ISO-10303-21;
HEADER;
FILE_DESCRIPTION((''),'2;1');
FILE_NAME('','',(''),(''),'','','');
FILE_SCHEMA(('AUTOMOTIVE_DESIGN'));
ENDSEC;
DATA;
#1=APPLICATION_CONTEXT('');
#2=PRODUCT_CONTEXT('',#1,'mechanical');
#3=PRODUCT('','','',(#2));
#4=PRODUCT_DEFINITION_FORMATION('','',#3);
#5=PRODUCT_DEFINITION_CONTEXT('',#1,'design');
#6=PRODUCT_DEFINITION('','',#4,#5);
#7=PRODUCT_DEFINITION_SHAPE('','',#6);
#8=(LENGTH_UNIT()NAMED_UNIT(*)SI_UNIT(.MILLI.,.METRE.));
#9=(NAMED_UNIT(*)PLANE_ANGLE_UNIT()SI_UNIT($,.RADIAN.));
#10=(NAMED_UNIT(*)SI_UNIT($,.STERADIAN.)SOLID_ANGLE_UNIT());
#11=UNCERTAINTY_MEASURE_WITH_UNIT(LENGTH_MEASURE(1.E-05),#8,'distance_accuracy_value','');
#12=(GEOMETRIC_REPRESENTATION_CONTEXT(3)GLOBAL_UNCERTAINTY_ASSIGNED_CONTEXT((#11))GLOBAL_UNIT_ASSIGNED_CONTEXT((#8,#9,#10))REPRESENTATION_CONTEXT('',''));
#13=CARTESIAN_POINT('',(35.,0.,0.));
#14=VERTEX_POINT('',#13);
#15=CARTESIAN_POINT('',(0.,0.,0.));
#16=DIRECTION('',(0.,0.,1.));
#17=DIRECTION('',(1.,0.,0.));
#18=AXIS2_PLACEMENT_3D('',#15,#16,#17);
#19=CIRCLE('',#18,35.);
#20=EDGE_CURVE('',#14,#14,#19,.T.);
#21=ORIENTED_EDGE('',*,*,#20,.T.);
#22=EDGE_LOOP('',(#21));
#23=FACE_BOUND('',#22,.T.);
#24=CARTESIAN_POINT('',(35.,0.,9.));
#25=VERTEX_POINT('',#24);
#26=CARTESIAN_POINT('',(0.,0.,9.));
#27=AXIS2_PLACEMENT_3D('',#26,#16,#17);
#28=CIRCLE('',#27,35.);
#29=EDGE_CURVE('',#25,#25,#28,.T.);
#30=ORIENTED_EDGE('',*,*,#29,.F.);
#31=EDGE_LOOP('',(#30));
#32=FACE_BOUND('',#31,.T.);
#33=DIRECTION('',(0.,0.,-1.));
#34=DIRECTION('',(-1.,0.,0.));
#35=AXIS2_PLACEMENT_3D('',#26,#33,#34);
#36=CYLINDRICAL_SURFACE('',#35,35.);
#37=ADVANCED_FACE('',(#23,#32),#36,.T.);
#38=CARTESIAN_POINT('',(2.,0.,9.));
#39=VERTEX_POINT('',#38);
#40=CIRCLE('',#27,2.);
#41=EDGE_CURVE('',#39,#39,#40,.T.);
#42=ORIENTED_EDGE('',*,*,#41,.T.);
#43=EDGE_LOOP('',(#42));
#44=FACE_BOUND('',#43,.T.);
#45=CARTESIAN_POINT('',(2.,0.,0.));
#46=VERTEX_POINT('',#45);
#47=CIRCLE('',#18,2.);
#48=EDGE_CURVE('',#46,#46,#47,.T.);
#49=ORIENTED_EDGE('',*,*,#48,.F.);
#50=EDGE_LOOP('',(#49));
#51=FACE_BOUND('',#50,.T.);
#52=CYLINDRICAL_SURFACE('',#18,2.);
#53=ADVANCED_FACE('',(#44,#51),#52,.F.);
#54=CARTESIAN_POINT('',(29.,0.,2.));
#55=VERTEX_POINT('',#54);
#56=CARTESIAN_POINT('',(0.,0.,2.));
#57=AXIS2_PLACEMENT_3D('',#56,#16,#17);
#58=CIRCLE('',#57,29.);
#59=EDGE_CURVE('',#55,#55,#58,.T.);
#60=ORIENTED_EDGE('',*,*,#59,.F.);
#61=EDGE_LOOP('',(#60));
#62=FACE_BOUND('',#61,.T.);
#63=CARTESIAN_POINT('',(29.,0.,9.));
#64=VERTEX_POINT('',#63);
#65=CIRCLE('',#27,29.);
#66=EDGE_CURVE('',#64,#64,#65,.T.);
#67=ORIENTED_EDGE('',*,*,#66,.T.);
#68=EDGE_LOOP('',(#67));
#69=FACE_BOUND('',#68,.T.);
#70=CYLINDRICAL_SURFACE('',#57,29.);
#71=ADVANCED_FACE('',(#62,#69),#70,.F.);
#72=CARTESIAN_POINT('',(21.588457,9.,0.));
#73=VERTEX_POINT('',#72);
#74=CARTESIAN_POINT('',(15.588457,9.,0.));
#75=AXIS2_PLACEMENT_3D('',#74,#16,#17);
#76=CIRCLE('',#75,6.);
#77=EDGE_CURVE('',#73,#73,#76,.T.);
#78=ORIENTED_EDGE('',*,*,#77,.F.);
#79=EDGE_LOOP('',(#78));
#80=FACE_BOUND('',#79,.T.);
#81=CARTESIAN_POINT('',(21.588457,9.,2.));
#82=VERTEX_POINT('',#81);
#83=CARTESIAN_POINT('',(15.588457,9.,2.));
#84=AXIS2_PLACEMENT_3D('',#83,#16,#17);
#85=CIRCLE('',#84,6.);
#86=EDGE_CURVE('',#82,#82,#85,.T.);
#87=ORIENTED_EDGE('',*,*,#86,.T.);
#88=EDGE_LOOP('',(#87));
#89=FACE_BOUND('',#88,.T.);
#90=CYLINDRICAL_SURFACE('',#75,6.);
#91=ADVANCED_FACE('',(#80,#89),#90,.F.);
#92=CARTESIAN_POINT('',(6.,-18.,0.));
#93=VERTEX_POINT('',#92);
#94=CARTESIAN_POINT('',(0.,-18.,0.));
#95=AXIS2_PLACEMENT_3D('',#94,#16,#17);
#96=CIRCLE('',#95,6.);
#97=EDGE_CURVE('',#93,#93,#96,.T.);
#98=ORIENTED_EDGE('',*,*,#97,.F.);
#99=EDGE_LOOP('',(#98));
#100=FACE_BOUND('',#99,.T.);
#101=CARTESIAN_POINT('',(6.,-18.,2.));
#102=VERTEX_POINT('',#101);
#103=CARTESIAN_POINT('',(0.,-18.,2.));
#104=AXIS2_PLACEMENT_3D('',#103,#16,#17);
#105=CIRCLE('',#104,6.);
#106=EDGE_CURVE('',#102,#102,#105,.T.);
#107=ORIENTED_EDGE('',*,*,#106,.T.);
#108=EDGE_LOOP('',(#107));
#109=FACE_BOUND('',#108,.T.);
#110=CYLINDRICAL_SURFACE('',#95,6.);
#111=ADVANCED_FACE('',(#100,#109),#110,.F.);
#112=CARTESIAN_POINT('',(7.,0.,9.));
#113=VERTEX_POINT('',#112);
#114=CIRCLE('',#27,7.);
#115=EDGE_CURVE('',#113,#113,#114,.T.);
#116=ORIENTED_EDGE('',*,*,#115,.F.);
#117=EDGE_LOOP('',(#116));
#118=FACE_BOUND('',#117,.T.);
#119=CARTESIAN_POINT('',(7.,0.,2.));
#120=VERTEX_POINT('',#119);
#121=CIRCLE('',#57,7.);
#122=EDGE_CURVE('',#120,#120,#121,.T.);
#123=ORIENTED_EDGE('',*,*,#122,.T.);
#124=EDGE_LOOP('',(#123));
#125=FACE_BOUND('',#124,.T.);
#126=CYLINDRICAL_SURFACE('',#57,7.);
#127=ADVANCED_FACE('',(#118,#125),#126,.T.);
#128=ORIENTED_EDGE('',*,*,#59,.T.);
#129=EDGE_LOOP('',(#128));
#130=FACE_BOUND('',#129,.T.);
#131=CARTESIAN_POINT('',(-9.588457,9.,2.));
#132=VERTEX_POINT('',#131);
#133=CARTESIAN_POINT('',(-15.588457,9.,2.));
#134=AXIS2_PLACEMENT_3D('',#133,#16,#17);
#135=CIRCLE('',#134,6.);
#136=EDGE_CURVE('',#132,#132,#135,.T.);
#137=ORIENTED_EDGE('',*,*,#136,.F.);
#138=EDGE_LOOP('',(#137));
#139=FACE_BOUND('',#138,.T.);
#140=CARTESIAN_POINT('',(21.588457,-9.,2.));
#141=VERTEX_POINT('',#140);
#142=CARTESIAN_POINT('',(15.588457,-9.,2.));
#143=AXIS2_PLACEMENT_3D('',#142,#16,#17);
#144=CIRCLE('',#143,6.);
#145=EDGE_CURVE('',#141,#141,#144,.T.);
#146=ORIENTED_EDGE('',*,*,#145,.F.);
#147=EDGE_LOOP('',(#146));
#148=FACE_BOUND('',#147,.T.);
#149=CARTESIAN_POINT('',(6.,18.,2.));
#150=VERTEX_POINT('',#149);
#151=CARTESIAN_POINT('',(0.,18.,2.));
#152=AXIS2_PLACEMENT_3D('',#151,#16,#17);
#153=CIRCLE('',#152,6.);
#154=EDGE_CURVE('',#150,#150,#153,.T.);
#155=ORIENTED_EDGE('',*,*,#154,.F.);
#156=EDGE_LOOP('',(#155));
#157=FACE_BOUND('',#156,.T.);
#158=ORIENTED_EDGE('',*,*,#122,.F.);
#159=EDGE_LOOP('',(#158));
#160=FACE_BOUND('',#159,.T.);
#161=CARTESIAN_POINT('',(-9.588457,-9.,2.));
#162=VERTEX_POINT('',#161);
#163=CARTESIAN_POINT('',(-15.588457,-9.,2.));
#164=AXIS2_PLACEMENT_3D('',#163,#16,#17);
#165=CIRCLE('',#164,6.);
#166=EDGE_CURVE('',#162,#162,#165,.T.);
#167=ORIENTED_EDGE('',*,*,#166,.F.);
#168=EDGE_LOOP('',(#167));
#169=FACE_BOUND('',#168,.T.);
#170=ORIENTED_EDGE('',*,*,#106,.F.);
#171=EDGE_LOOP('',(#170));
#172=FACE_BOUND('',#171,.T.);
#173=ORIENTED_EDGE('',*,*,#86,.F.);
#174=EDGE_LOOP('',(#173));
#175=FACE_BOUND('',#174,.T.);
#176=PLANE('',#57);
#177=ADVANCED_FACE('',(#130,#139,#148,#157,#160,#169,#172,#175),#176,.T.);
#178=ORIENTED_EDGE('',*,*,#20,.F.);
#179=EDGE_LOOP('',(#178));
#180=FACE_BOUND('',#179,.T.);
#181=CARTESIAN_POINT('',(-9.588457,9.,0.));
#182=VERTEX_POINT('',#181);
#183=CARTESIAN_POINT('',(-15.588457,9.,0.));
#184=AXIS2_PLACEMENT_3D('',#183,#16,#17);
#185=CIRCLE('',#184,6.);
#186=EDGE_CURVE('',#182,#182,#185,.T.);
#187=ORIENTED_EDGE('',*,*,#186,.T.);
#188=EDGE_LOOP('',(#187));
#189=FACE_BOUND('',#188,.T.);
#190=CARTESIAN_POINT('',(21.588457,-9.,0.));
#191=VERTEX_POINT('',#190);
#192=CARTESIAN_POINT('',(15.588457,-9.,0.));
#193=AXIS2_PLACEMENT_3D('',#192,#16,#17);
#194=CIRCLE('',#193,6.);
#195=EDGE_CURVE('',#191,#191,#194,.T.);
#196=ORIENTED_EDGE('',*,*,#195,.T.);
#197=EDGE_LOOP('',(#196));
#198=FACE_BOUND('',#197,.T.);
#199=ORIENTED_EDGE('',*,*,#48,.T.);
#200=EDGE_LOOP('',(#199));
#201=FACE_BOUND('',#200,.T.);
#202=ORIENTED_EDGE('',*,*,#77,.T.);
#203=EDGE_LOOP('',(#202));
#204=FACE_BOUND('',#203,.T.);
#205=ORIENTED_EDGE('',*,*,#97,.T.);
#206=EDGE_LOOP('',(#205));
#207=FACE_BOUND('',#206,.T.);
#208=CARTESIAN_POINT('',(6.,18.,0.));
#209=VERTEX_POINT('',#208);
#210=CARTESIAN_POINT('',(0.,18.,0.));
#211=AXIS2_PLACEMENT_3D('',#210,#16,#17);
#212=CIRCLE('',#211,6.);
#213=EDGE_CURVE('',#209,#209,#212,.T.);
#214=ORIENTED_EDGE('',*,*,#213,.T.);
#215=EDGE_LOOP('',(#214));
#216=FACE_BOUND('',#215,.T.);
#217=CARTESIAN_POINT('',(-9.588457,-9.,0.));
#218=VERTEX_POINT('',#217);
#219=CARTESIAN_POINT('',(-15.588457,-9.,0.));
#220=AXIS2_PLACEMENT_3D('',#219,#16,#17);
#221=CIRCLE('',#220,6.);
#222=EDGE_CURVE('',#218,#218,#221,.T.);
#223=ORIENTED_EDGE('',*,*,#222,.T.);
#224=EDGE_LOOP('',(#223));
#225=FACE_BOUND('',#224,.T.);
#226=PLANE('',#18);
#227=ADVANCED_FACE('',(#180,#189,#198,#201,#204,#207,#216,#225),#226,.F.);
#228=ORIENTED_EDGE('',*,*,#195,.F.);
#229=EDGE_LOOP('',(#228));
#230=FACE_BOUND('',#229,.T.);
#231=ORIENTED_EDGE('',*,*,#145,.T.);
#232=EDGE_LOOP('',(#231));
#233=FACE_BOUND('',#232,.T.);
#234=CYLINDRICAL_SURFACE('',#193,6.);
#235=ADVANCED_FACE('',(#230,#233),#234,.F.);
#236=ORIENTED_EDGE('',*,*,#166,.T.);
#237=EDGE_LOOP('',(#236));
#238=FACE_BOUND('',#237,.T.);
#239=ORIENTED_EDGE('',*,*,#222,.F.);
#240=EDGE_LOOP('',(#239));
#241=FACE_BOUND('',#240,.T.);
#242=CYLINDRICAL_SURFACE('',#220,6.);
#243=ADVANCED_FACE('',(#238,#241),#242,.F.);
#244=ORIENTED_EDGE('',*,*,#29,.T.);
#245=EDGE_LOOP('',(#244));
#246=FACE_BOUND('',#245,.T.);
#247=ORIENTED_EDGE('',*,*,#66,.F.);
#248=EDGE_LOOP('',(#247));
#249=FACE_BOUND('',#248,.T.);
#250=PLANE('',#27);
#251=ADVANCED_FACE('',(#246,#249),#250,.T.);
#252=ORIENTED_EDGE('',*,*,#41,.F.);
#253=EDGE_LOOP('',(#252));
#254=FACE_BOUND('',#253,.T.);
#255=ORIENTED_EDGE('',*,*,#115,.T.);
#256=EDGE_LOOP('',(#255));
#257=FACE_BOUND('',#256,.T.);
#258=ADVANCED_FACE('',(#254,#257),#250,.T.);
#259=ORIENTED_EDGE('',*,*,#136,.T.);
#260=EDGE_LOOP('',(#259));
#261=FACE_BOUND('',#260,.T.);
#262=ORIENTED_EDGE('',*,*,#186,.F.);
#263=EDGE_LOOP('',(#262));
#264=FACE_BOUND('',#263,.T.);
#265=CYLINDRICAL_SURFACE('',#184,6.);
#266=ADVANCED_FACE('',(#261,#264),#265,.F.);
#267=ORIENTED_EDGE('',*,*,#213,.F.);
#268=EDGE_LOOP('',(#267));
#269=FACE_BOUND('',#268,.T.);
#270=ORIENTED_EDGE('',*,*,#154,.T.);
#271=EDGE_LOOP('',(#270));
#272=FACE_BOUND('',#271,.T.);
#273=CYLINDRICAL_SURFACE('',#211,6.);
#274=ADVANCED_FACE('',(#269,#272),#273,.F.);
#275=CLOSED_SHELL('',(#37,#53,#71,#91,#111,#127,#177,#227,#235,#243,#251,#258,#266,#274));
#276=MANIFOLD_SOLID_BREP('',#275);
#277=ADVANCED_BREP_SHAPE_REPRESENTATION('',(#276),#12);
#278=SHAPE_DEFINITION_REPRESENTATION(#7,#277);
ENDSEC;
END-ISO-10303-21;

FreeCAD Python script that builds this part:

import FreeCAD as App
import Part
import Sketcher

V = App.Vector
Q = App.Units.Quantity

doc = App.newDocument("Part")
body = doc.addObject("PartDesign::Body", "Body")

# Sketch on XY plane
sketch1 = body.newObject("Sketcher::SketchObject", "Sketch")
sketch1.AttachmentSupport = (doc.getObject("XY_Plane"), [""])
sketch1.MapMode = "FlatFace"
sketch1.addGeometry(Part.Circle(V(0, 0, 0), V(0, 0, 1), 35), False)
sketch1.addConstraint([
    Sketcher.Constraint("Coincident", 0, 3, -1, 1),
    Sketcher.Constraint("Diameter", 0, Q("70 mm")),
])
pad1 = body.newObject("PartDesign::Pad", "Pad")
pad1.Profile = sketch1
pad1.Length = 9

# Sketch on XY plane
sketch2 = body.newObject("Sketcher::SketchObject", "Sketch001")
sketch2.AttachmentSupport = (doc.getObject("XY_Plane"), [""])
sketch2.MapMode = "FlatFace"
sketch2.AttachmentOffset = App.Placement(V(0, 0, 9), App.Rotation())
sketch2.addGeometry(Part.Circle(V(0, 0, 0), V(0, 0, 1), 2), False)
sketch2.addConstraint([
    Sketcher.Constraint("Coincident", 0, 3, -1, 1),
    Sketcher.Constraint("Diameter", 0, Q("4 mm")),
])
pocket1 = body.newObject("PartDesign::Pocket", "Pocket")
pocket1.Profile = sketch2
pocket1.Type = "ThroughAll"
pocket1.Midplane = True

# Sketch on XY plane
sketch3 = body.newObject("Sketcher::SketchObject", "Sketch002")
sketch3.AttachmentSupport = (doc.getObject("XY_Plane"), [""])
sketch3.MapMode = "FlatFace"
sketch3.AttachmentOffset = App.Placement(V(0, 0, 9), App.Rotation())
sketch3.addGeometry([
    Part.Circle(V(0, 0, 0), V(0, 0, 1), 29),
    Part.Circle(V(0, 0, 0), V(0, 0, 1), 7),
], False)
sketch3.addConstraint([
    Sketcher.Constraint("Coincident", 0, 3, -1, 1),
    Sketcher.Constraint("Coincident", 1, 3, -1, 1),
    Sketcher.Constraint("Diameter", 0, Q("58 mm")),
    Sketcher.Constraint("Diameter", 1, Q("14 mm")),
])
pocket2 = body.newObject("PartDesign::Pocket", "Pocket001")
pocket2.Profile = sketch3
pocket2.Length = 7

# Sketch on XY plane
sketch4 = body.newObject("Sketcher::SketchObject", "Sketch003")
sketch4.AttachmentSupport = (doc.getObject("XY_Plane"), [""])
sketch4.MapMode = "FlatFace"
sketch4.AttachmentOffset = App.Placement(V(0, 0, 2), App.Rotation())
sketch4.addGeometry([
    Part.Circle(V(0, 18, 0), V(0, 0, 1), 6),  # 0
    Part.Circle(V(16, 9, 0), V(0, 0, 1), 6),  # 1
    Part.Circle(V(16, -9, 0), V(0, 0, 1), 6),  # 2
    Part.Circle(V(0, -18, 0), V(0, 0, 1), 6),  # 3
    Part.Circle(V(-16, -9, 0), V(0, 0, 1), 6),  # 4
    Part.Circle(V(-16, 9, 0), V(0, 0, 1), 6),  # 5
], False)
sketch4.addConstraint([
    Sketcher.Constraint("Equal", 0, 1),
    Sketcher.Constraint("Equal", 1, 2),
    Sketcher.Constraint("Equal", 2, 3),
    Sketcher.Constraint("Equal", 3, 4),
    Sketcher.Constraint("Equal", 4, 5),
    Sketcher.Constraint("Symmetric", 0, 3, 3, 3, -1, 1),
    Sketcher.Constraint("Symmetric", 1, 3, 4, 3, -1, 1),
    Sketcher.Constraint("Symmetric", 2, 3, 5, 3, -1, 1),
    Sketcher.Constraint("Symmetric", 2, 3, 4, 3, -2),
    Sketcher.Constraint("PointOnObject", 0, 3, -2),
    Sketcher.Constraint("Diameter", 0, Q("12 mm")),
    Sketcher.Constraint("DistanceY", -1, 1, 0, 3, Q("18 mm")),
    Sketcher.Constraint("DistanceY", -1, 1, 1, 3, Q("9 mm")),
    Sketcher.Constraint("DistanceX", -1, 1, 1, 3, Q("15.588457 mm")),
])
pocket3 = body.newObject("PartDesign::Pocket", "Pocket002")
pocket3.Profile = sketch4
pocket3.Type = "ThroughAll"

doc.recompute()
